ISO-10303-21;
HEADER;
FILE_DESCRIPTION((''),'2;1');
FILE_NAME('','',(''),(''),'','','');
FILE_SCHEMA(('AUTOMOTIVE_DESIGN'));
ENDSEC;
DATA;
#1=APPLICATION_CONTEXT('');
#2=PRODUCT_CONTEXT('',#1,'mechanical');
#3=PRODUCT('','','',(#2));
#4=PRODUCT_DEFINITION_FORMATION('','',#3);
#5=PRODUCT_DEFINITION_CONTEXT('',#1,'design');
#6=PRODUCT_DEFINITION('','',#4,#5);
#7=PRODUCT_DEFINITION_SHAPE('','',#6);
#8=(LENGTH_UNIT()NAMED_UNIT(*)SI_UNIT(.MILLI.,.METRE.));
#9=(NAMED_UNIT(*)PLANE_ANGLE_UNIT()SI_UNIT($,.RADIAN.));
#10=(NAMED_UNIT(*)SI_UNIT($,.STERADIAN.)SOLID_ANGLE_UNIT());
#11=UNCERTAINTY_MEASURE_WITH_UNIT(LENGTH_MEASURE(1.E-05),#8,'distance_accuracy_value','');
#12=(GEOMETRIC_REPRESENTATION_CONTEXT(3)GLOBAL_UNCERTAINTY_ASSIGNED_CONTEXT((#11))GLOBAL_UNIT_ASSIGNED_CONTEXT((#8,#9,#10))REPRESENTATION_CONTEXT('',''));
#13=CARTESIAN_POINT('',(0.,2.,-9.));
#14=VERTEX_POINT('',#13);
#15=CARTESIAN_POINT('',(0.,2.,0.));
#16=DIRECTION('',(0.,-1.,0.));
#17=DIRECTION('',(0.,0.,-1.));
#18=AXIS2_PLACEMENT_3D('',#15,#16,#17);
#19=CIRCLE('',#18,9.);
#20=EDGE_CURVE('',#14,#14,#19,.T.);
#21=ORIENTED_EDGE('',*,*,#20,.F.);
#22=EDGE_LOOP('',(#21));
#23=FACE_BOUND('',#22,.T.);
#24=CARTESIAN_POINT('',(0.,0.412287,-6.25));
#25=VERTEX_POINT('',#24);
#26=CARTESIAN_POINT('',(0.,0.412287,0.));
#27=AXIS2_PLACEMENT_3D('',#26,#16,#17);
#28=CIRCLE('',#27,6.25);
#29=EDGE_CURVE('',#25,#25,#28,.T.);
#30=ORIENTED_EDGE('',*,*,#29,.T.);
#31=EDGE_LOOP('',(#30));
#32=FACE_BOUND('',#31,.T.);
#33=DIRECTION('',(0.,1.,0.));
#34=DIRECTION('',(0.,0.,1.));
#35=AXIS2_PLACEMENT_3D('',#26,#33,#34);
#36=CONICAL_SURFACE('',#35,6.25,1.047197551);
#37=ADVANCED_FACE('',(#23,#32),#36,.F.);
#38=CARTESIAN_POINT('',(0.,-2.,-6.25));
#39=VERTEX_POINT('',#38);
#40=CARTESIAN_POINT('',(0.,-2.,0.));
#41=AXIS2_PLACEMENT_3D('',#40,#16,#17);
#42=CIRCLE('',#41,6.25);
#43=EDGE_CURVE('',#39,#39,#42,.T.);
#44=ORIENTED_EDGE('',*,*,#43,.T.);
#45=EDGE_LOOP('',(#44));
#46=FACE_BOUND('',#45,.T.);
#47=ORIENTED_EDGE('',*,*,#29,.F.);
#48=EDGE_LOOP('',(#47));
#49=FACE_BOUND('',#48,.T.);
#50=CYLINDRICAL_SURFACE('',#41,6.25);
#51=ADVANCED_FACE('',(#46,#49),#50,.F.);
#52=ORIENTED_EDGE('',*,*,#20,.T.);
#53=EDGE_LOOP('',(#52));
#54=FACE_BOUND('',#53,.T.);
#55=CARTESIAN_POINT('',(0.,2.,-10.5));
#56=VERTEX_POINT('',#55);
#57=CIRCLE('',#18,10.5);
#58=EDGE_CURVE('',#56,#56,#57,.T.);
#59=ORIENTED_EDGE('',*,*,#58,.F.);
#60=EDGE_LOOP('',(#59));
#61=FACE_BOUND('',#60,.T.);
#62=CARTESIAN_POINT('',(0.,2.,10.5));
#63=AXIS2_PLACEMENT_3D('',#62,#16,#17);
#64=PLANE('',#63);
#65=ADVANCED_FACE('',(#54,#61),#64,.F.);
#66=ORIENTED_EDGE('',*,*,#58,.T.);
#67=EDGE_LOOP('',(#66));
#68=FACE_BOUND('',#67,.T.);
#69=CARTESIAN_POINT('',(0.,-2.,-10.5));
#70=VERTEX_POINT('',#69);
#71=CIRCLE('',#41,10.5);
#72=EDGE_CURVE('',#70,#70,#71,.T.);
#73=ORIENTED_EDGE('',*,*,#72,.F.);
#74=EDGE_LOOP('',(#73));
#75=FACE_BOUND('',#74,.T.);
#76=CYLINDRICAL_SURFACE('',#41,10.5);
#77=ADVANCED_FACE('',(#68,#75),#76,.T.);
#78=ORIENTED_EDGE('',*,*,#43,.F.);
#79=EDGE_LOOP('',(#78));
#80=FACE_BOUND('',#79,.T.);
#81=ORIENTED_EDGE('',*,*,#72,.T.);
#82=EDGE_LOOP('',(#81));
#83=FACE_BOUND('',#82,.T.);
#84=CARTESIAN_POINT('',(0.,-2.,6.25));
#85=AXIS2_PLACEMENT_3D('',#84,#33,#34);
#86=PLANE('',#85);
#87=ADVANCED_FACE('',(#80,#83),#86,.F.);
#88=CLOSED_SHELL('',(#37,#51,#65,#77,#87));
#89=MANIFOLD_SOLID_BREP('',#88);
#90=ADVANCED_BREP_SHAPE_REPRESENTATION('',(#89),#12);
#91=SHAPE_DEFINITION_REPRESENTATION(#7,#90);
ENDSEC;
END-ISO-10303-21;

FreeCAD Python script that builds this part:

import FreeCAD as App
import Part
import Sketcher
from FreeCAD import Vector
Q = App.Units.Quantity

doc = App.newDocument("Part")
body = doc.addObject("PartDesign::Body", "Body")

sketch1 = doc.addObject("Sketcher::SketchObject", "Sketch")
body.addObject(sketch1)
sketch1.AttachmentSupport = (doc.YZ_Plane, [""])
sketch1.MapMode = "FlatFace"
sketch1.addGeometry(Part.LineSegment(Vector(2, 9, 0), Vector(2, 10.5, 0)), False)
sketch1.addGeometry(Part.LineSegment(Vector(2, 10.5, 0), Vector(-2, 10.5, 0)), False)
sketch1.addGeometry(Part.LineSegment(Vector(-2, 10.5, 0), Vector(-2, 6.25, 0)), False)
sketch1.addGeometry(Part.LineSegment(Vector(-2, 6.25, 0), Vector(0.412287, 6.25, 0)), False)
sketch1.addGeometry(Part.LineSegment(Vector(0.412287, 6.25, 0), Vector(2, 9, 0)), False)
sketch1.addConstraint(Sketcher.Constraint("Coincident", 0, 2, 1, 1))
sketch1.addConstraint(Sketcher.Constraint("Coincident", 1, 2, 2, 1))
sketch1.addConstraint(Sketcher.Constraint("Coincident", 2, 2, 3, 1))
sketch1.addConstraint(Sketcher.Constraint("Coincident", 3, 2, 4, 1))
sketch1.addConstraint(Sketcher.Constraint("Coincident", 4, 2, 0, 1))
sketch1.addConstraint(Sketcher.Constraint("Vertical", 0))
sketch1.addConstraint(Sketcher.Constraint("Horizontal", 1))
sketch1.addConstraint(Sketcher.Constraint("Vertical", 2))
sketch1.addConstraint(Sketcher.Constraint("Horizontal", 3))
sketch1.addConstraint(Sketcher.Constraint("DistanceX", 1, 2, 1, 1, Q("4 mm")))
sketch1.addConstraint(Sketcher.Constraint("Angle", 4, Q("60 deg")))
sketch1.addConstraint(Sketcher.Constraint("DistanceY", 0, 1, 0, 2, Q("1.5 mm")))
sketch1.addConstraint(Sketcher.Constraint("DistanceX", -1, 1, 0, 2, Q("2 mm")))
sketch1.addConstraint(Sketcher.Constraint("DistanceY", -1, 1, 4, 2, Q("9 mm")))
sketch1.addConstraint(Sketcher.Constraint("DistanceY", 2, 2, 2, 1, Q("4.25 mm")))
revolution = doc.addObject("PartDesign::Revolution", "Revolution")
body.addObject(revolution)
revolution.Profile = sketch1
revolution.ReferenceAxis = (sketch1, ["H_Axis"])
revolution.Angle = 360

doc.recompute()
